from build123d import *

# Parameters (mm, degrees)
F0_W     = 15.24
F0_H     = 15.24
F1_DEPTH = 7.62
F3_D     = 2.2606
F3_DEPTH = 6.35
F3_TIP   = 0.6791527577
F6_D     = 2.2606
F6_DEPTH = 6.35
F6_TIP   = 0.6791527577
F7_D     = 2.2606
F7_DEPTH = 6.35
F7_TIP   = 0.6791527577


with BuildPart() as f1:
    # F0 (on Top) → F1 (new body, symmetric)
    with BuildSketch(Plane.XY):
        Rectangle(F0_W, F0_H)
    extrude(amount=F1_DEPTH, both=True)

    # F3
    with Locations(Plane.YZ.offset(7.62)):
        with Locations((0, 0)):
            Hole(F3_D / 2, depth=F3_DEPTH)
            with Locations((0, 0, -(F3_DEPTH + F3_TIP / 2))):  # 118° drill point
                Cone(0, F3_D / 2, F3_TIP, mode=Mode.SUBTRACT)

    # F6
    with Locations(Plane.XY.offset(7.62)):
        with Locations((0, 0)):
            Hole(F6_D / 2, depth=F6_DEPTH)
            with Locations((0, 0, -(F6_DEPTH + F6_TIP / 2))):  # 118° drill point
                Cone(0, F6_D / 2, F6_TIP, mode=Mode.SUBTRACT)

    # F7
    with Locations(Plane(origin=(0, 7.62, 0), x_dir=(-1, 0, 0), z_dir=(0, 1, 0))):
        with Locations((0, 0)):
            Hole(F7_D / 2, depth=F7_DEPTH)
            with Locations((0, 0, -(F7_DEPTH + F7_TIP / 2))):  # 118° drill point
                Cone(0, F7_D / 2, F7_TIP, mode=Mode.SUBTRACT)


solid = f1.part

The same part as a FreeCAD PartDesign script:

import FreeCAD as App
import Part
import Sketcher
Q = App.Units.Quantity

doc = App.newDocument("Part")
body = doc.addObject("PartDesign::Body", "Body")

# Sketch on XY plane
sketch1 = body.newObject("Sketcher::SketchObject", "Sketch")
sketch1.AttachmentSupport = (doc.getObject("XY_Plane"), [""])
sketch1.MapMode = "FlatFace"
sketch1.addGeometry([
    Part.LineSegment(App.Vector(-7.62, 7.62, 0), App.Vector(-7.62, -7.62, 0)),
    Part.LineSegment(App.Vector(-7.62, -7.62, 0), App.Vector(7.62, -7.62, 0)),
    Part.LineSegment(App.Vector(7.62, -7.62, 0), App.Vector(7.62, 7.62, 0)),
    Part.LineSegment(App.Vector(7.62, 7.62, 0), App.Vector(-7.62, 7.62, 0)),
], False)
sketch1.addConstraint([
    Sketcher.Constraint("Coincident", 0, 2, 1, 1),
    Sketcher.Constraint("Coincident", 1, 2, 2, 1),
    Sketcher.Constraint("Coincident", 2, 2, 3, 1),
    Sketcher.Constraint("Coincident", 3, 2, 0, 1),
    Sketcher.Constraint("Vertical", 0),
    Sketcher.Constraint("Horizontal", 1),
    Sketcher.Constraint("Vertical", 2),
    Sketcher.Constraint("Horizontal", 3),
    Sketcher.Constraint("Symmetric", 0, 2, 2, 2, -1, 1),
    Sketcher.Constraint("Equal", 3, 0),
    Sketcher.Constraint("DistanceX", 1, 1, 1, 2, Q("0.6 in")),
])
pad1 = body.newObject("PartDesign::Pad", "Pad")
pad1.Profile = sketch1
pad1.Length = Q("0.6 in")
pad1.Midplane = True

# Sketch on YZ plane
sketch2 = body.newObject("Sketcher::SketchObject", "Sketch001")
sketch2.AttachmentSupport = (doc.getObject("YZ_Plane"), [""])
sketch2.MapMode = "FlatFace"
sketch2.AttachmentOffset = App.Placement(App.Vector(0, 0, 0.3 * 25.4), App.Rotation())
sketch2.addGeometry(Part.Circle(App.Vector(0, 0, 0), App.Vector(0, 0, 1), 1.1303), False)
sketch2.addConstraint([
    Sketcher.Constraint("Coincident", 0, 3, -1, 1),
    Sketcher.Constraint("Diameter", 0, Q("0.089 in")),
])
doc.recompute()
hole = body.newObject("PartDesign::Hole", "Hole")
hole.Profile = sketch2
hole.ThreadType = "None"
hole.Diameter = Q("0.089 in")
hole.DepthType = "Dimension"
hole.Depth = Q("0.25 in")
hole.DrillPoint = "Angled"
hole.DrillPointAngle = 118

# Sketch on XY plane
sketch3 = body.newObject("Sketcher::SketchObject", "Sketch002")
sketch3.AttachmentSupport = (doc.getObject("XY_Plane"), [""])
sketch3.MapMode = "FlatFace"
sketch3.AttachmentOffset = App.Placement(App.Vector(0, 0, 0.3 * 25.4), App.Rotation())
sketch3.addGeometry(Part.Circle(App.Vector(0, 0, 0), App.Vector(0, 0, 1), 1.1303), False)
sketch3.addConstraint([
    Sketcher.Constraint("Coincident", 0, 3, -1, 1),
    Sketcher.Constraint("Diameter", 0, Q("0.089 in")),
])
doc.recompute()
hole2 = body.newObject("PartDesign::Hole", "Hole001")
hole2.Profile = sketch3
hole2.ThreadType = "None"
hole2.Diameter = Q("0.089 in")
hole2.DepthType = "Dimension"
hole2.Depth = Q("0.25 in")
hole2.DrillPoint = "Angled"
hole2.DrillPointAngle = 118

# Sketch on XZ plane
sketch4 = body.newObject("Sketcher::SketchObject", "Sketch003")
sketch4.AttachmentSupport = (doc.getObject("XZ_Plane"), [""])
sketch4.MapMode = "FlatFace"
sketch4.AttachmentOffset = App.Placement(App.Vector(0, 0, -0.3 * 25.4), App.Rotation())
sketch4.addGeometry(Part.Circle(App.Vector(0, 0, 0), App.Vector(0, 0, 1), 1.1303), False)
sketch4.addConstraint([
    Sketcher.Constraint("Coincident", 0, 3, -1, 1),
    Sketcher.Constraint("Diameter", 0, Q("0.089 in")),
])
doc.recompute()
hole3 = body.newObject("PartDesign::Hole", "Hole002")
hole3.Profile = sketch4
hole3.ThreadType = "None"
hole3.Diameter = Q("0.089 in")
hole3.DepthType = "Dimension"
hole3.Depth = Q("0.25 in")
hole3.DrillPoint = "Angled"
hole3.DrillPointAngle = 118
hole3.Reversed = True

doc.recompute()
